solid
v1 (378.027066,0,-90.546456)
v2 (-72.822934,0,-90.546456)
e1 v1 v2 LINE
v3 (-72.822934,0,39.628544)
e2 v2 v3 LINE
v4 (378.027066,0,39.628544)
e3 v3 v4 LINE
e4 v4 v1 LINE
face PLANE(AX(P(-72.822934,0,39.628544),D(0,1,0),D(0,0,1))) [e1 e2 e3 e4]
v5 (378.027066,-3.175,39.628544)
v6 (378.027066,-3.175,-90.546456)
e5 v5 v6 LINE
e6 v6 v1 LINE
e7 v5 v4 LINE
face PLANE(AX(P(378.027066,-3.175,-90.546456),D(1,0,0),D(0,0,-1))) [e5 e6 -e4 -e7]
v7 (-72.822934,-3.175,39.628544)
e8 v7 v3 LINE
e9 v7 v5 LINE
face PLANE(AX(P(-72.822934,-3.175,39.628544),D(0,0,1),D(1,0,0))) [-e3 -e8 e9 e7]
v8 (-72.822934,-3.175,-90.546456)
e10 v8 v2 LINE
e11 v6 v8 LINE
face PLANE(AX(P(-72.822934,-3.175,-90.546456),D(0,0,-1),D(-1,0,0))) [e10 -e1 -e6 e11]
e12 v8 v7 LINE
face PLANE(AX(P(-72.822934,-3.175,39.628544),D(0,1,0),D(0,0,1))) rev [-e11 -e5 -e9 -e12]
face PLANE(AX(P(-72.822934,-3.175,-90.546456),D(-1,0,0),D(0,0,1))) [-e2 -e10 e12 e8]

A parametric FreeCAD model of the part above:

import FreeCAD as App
import Part
import Sketcher
Q = App.Units.Quantity


def add_polygon(sketch, points):
    """Adds a closed chain of lines whose ends are joined by coincident constraints."""
    first, n = sketch.GeometryCount, len(points)
    for a, b in zip(points, points[1:] + points[:1]):
        sketch.addGeometry(Part.LineSegment(App.Vector(*a, 0), App.Vector(*b, 0)), False)
    for i in range(n):
        sketch.addConstraint(Sketcher.Constraint("Coincident", first + i, 2, first + (i + 1) % n, 1))

doc = App.newDocument("Part")
body = doc.addObject("PartDesign::Body", "Body")

sketch1 = body.newObject("Sketcher::SketchObject", "Sketch")
sketch1.AttachmentSupport = (doc.getObject("XZ_Plane"), [""])
sketch1.MapMode = "FlatFace"
add_polygon(sketch1, [(-73, -91), (-73, 40), (378, 40), (378, -91)])
sketch1.addConstraint([
    Sketcher.Constraint("Vertical", 0),
    Sketcher.Constraint("Horizontal", 1),
    Sketcher.Constraint("Vertical", 2),
    Sketcher.Constraint("Horizontal", 3),
    Sketcher.Constraint("DistanceX", 1, 1, 1, 2, Q("17.75 in")),
    Sketcher.Constraint("DistanceY", 0, 1, 0, 2, Q("5.125 in")),
    Sketcher.Constraint("DistanceX", 0, 2, -1, 1, Q("72.822934 mm")),
    Sketcher.Constraint("DistanceY", -1, 1, 0, 2, Q("39.628544 mm")),
])
pad1 = body.newObject("PartDesign::Pad", "Pad")
pad1.Profile = sketch1
pad1.Length = Q("0.125 in")

doc.recompute()
